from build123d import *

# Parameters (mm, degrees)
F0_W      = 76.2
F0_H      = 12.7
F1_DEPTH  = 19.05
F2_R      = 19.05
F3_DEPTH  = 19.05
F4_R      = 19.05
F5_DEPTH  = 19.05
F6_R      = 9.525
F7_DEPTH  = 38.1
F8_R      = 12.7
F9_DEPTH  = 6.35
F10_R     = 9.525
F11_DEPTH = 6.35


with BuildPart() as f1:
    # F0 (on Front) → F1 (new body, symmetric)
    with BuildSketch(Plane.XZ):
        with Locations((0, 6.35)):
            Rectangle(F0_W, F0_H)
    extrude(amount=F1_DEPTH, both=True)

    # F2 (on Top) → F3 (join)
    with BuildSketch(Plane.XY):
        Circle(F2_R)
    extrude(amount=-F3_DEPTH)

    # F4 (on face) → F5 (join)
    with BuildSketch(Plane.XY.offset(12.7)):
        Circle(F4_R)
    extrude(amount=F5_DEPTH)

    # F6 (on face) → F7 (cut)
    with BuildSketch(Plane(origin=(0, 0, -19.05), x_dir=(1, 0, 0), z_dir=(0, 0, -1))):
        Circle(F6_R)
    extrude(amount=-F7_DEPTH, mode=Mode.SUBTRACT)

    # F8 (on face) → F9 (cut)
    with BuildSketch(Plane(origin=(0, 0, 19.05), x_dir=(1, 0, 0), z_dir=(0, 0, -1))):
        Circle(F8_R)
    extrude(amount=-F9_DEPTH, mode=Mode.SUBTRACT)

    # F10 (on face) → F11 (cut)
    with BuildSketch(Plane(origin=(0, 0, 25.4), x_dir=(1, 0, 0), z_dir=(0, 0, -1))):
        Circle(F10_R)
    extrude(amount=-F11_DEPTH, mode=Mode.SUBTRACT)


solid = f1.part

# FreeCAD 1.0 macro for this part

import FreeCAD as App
import Part
import Sketcher

V = App.Vector
Q = App.Units.Quantity


def add_polygon(sketch, points):
    """Adds a closed chain of lines whose ends are joined by coincident constraints."""
    first, n = sketch.GeometryCount, len(points)
    for a, b in zip(points, points[1:] + points[:1]):
        sketch.addGeometry(Part.LineSegment(App.Vector(*a, 0), App.Vector(*b, 0)), False)
    for i in range(n):
        sketch.addConstraint(Sketcher.Constraint("Coincident", first + i, 2, first + (i + 1) % n, 1))

doc = App.newDocument("Part")
body = doc.addObject("PartDesign::Body", "Body")

# Sketch on XZ plane
sketch1 = body.newObject("Sketcher::SketchObject", "Sketch")
sketch1.AttachmentSupport = (doc.getObject("XZ_Plane"), [""])
sketch1.MapMode = "FlatFace"
add_polygon(sketch1, [(-38, 13), (-38, 0), (38, 0), (38, 13)])  # lines 0-3
sketch1.addConstraint([
    Sketcher.Constraint("Vertical", 0),
    Sketcher.Constraint("Horizontal", 1),
    Sketcher.Constraint("Vertical", 2),
    Sketcher.Constraint("Horizontal", 3),
    Sketcher.Constraint("Symmetric", 0, 2, 1, 2, -1, 1),
    Sketcher.Constraint("DistanceX", 1, 1, 1, 2, Q("3 in")),
    Sketcher.Constraint("DistanceY", 0, 2, 0, 1, Q("0.5 in")),
])
pad1 = body.newObject("PartDesign::Pad", "Pad")
pad1.Profile = sketch1
pad1.Length = Q("1.5 in")
pad1.Midplane = True

# Sketch on XY plane
sketch2 = body.newObject("Sketcher::SketchObject", "Sketch001")
sketch2.AttachmentSupport = (doc.getObject("XY_Plane"), [""])
sketch2.MapMode = "FlatFace"
sketch2.addGeometry(Part.Circle(V(0, 0, 0), V(0, 0, 1), 19), False)
sketch2.addConstraint([
    Sketcher.Constraint("Coincident", 0, 3, -1, 1),
    Sketcher.Constraint("Diameter", 0, Q("1.5 in")),
])
pad2 = body.newObject("PartDesign::Pad", "Pad001")
pad2.Profile = sketch2
pad2.Length = Q("0.75 in")
pad2.Reversed = True

# Sketch on XY plane
sketch3 = body.newObject("Sketcher::SketchObject", "Sketch002")
sketch3.AttachmentSupport = (doc.getObject("XY_Plane"), [""])
sketch3.MapMode = "FlatFace"
sketch3.AttachmentOffset = App.Placement(V(0, 0, 0.5 * 25.4), App.Rotation())
sketch3.addGeometry(Part.Circle(V(0, 0, 0), V(0, 0, 1), 19), False)
sketch3.addConstraint([
    Sketcher.Constraint("Coincident", 0, 3, -1, 1),
    Sketcher.Constraint("Diameter", 0, Q("1.5 in")),
])
pad3 = body.newObject("PartDesign::Pad", "Pad002")
pad3.Profile = sketch3
pad3.Length = Q("0.75 in")

# Sketch on XY plane
sketch4 = body.newObject("Sketcher::SketchObject", "Sketch003")
sketch4.AttachmentSupport = (doc.getObject("XY_Plane"), [""])
sketch4.MapMode = "FlatFace"
sketch4.AttachmentOffset = App.Placement(V(0, 0, -0.75 * 25.4), App.Rotation())
sketch4.addGeometry(Part.Circle(V(0, 0, 0), V(0, 0, 1), 10), False)
sketch4.addConstraint([
    Sketcher.Constraint("Coincident", 0, 3, -1, 1),
    Sketcher.Constraint("Diameter", 0, Q("0.75 in")),
])
pocket1 = body.newObject("PartDesign::Pocket", "Pocket")
pocket1.Profile = sketch4
pocket1.Length = Q("1.5 in")
pocket1.Reversed = True

# Sketch on XY plane
sketch5 = body.newObject("Sketcher::SketchObject", "Sketch004")
sketch5.AttachmentSupport = (doc.getObject("XY_Plane"), [""])
sketch5.MapMode = "FlatFace"
sketch5.AttachmentOffset = App.Placement(V(0, 0, 0.75 * 25.4), App.Rotation())
sketch5.addGeometry(Part.Circle(V(0, 0, 0), V(0, 0, 1), 13), False)
sketch5.addConstraint([
    Sketcher.Constraint("Coincident", 0, 3, -1, 1),
    Sketcher.Constraint("Diameter", 0, Q("1 in")),
])
pocket2 = body.newObject("PartDesign::Pocket", "Pocket001")
pocket2.Profile = sketch5
pocket2.Length = Q("0.25 in")
pocket2.Reversed = True

# Sketch on XY plane
sketch6 = body.newObject("Sketcher::SketchObject", "Sketch005")
sketch6.AttachmentSupport = (doc.getObject("XY_Plane"), [""])
sketch6.MapMode = "FlatFace"
sketch6.AttachmentOffset = App.Placement(V(0, 0, 1 * 25.4), App.Rotation())
sketch6.addGeometry(Part.Circle(V(0, 0, 0), V(0, 0, 1), 10), False)
sketch6.addConstraint([
    Sketcher.Constraint("Coincident", 0, 3, -1, 1),
    Sketcher.Constraint("Diameter", 0, Q("0.75 in")),
])
pocket3 = body.newObject("PartDesign::Pocket", "Pocket002")
pocket3.Profile = sketch6
pocket3.Length = Q("0.25 in")
pocket3.Reversed = True

doc.recompute()
